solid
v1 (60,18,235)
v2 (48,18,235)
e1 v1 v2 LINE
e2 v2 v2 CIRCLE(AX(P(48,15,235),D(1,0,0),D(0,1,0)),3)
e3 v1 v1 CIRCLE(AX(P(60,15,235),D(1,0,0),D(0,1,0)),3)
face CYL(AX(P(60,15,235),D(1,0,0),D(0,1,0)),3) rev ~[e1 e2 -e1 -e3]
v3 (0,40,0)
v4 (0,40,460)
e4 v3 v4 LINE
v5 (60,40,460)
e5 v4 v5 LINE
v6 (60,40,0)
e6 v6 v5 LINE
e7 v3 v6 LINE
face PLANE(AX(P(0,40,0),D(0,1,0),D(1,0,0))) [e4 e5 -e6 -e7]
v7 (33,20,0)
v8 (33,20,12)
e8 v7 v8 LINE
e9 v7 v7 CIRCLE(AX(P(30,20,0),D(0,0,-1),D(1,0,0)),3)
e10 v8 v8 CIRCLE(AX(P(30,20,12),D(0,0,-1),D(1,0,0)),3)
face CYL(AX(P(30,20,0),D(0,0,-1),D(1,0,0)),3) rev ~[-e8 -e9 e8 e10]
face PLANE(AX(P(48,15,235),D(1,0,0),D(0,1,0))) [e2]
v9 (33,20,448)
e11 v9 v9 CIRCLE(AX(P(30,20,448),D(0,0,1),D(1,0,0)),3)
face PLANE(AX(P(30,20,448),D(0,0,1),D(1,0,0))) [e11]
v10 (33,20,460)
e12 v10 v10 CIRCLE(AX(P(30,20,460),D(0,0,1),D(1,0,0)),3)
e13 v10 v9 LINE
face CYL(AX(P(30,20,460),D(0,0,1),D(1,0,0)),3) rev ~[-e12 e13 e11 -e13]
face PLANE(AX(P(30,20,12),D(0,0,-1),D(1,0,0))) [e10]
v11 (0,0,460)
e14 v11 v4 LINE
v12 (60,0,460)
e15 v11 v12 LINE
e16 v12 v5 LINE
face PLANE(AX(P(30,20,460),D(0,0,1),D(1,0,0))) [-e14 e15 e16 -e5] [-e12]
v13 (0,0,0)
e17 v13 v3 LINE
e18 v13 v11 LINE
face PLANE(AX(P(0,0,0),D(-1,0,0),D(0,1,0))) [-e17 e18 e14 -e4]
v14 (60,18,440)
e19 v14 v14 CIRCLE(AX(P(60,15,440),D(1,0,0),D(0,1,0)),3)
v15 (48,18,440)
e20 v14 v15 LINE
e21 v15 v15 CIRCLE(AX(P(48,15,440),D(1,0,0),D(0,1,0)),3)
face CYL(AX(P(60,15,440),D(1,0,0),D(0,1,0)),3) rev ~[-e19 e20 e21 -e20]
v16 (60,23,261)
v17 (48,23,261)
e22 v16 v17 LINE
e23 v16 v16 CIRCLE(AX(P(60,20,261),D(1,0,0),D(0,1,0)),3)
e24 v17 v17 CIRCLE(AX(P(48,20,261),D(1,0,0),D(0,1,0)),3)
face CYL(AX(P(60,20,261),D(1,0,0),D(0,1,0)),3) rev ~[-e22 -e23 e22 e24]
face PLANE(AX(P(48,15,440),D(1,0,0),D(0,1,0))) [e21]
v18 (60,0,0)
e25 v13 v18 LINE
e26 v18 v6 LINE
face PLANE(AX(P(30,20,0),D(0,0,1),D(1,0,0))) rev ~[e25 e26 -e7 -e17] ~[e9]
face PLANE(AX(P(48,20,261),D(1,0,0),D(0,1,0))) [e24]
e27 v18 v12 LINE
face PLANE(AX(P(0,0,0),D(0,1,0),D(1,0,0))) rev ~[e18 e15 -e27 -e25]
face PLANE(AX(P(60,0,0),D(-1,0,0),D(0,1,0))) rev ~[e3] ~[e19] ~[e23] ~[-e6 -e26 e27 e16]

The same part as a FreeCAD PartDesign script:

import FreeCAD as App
import Part
import Sketcher

V = App.Vector
Q = App.Units.Quantity


def add_polygon(sketch, points):
    """Adds a closed chain of lines whose ends are joined by coincident constraints."""
    first, n = sketch.GeometryCount, len(points)
    for a, b in zip(points, points[1:] + points[:1]):
        sketch.addGeometry(Part.LineSegment(App.Vector(*a, 0), App.Vector(*b, 0)), False)
    for i in range(n):
        sketch.addConstraint(Sketcher.Constraint("Coincident", first + i, 2, first + (i + 1) % n, 1))

doc = App.newDocument("Part")
params = doc.addObject("Spreadsheet::Sheet", "Params")
for row, (alias, value) in enumerate([
    ("sketch1_width", "60 mm"),
    ("sketch1_height", "40 mm"),
    ("pad1_length", "460 mm"),
    ("sketch2_diameter", "6 mm"),
    ("pocket1_length", "12 mm"),
    ("sketch3_diameter", "6 mm"),
    ("pocket2_length", "12 mm"),
    ("sketch4_diameter", "6 mm"),
    ("pocket3_length", "12 mm"),
    ("sketch5_diameter", "6 mm"),
    ("pocket4_length", "12 mm"),
    ("sketch6_diameter", "6 mm"),
    ("pocket5_length", "12 mm"),
], start=1):
    params.set(f"A{row}", alias)
    params.set(f"B{row}", "=" + value)
    params.setAlias(f"B{row}", alias)

body = doc.addObject("PartDesign::Body", "Body")

# Sketch on XY plane
sketch1 = body.newObject("Sketcher::SketchObject", "Sketch")
sketch1.AttachmentSupport = (doc.getObject("XY_Plane"), [""])
sketch1.MapMode = "FlatFace"
add_polygon(sketch1, [(0, 40), (0, 0), (60, 0), (60, 40)])  # lines 0-3
sketch1.addConstraint([
    Sketcher.Constraint("Vertical", 0),
    Sketcher.Constraint("Horizontal", 1),
    Sketcher.Constraint("Vertical", 2),
    Sketcher.Constraint("Horizontal", 3),
    Sketcher.Constraint("Coincident", 0, 2, -1, 1),
    Sketcher.Constraint("DistanceX", 1, 1, 1, 2, Q("60 mm")),
    Sketcher.Constraint("DistanceY", 0, 2, 0, 1, Q("40 mm")),
])
sketch1.setExpression("Constraints[9]", "Params.sketch1_width")
sketch1.setExpression("Constraints[10]", "Params.sketch1_height")
pad1 = body.newObject("PartDesign::Pad", "Pad")
pad1.Profile = sketch1
pad1.setExpression("Length", "Params.pad1_length")

# Sketch on XY plane
sketch2 = body.newObject("Sketcher::SketchObject", "Sketch001")
sketch2.AttachmentSupport = (doc.getObject("XY_Plane"), [""])
sketch2.MapMode = "FlatFace"
sketch2.AttachmentOffset = App.Placement(V(0, 0, 460), App.Rotation())
sketch2.addGeometry(Part.Circle(V(30, 20, 0), V(0, 0, 1), 3), False)
sketch2.addConstraint([
    Sketcher.Constraint("Diameter", 0, Q("6 mm")),
    Sketcher.Constraint("DistanceX", -1, 1, 0, 3, Q("30 mm")),
    Sketcher.Constraint("DistanceY", -1, 1, 0, 3, Q("20 mm")),
])
sketch2.setExpression("Constraints[0]", "Params.sketch2_diameter")
pocket1 = body.newObject("PartDesign::Pocket", "Pocket")
pocket1.Profile = sketch2
pocket1.setExpression("Length", "Params.pocket1_length")

# Sketch on XY plane
sketch3 = body.newObject("Sketcher::SketchObject", "Sketch002")
sketch3.AttachmentSupport = (doc.getObject("XY_Plane"), [""])
sketch3.MapMode = "FlatFace"
sketch3.addGeometry(Part.Circle(V(30, 20, 0), V(0, 0, 1), 3), False)
sketch3.addConstraint([
    Sketcher.Constraint("Diameter", 0, Q("6 mm")),
    Sketcher.Constraint("DistanceX", -1, 1, 0, 3, Q("30 mm")),
    Sketcher.Constraint("DistanceY", -1, 1, 0, 3, Q("20 mm")),
])
sketch3.setExpression("Constraints[0]", "Params.sketch3_diameter")
pocket2 = body.newObject("PartDesign::Pocket", "Pocket001")
pocket2.Profile = sketch3
pocket2.setExpression("Length", "Params.pocket2_length")
pocket2.Reversed = True

# Sketch on YZ plane
sketch4 = body.newObject("Sketcher::SketchObject", "Sketch003")
sketch4.AttachmentSupport = (doc.getObject("YZ_Plane"), [""])
sketch4.MapMode = "FlatFace"
sketch4.AttachmentOffset = App.Placement(V(0, 0, 60), App.Rotation())
sketch4.addGeometry(Part.Circle(V(20, 261, 0), V(0, 0, 1), 3), False)
sketch4.addConstraint([
    Sketcher.Constraint("Diameter", 0, Q("6 mm")),
    Sketcher.Constraint("DistanceX", -1, 1, 0, 3, Q("20 mm")),
    Sketcher.Constraint("DistanceY", -1, 1, 0, 3, Q("261 mm")),
])
sketch4.setExpression("Constraints[0]", "Params.sketch4_diameter")
pocket3 = body.newObject("PartDesign::Pocket", "Pocket002")
pocket3.Profile = sketch4
pocket3.setExpression("Length", "Params.pocket3_length")

# Sketch on YZ plane
sketch5 = body.newObject("Sketcher::SketchObject", "Sketch004")
sketch5.AttachmentSupport = (doc.getObject("YZ_Plane"), [""])
sketch5.MapMode = "FlatFace"
sketch5.AttachmentOffset = App.Placement(V(0, 0, 60), App.Rotation())
sketch5.addGeometry(Part.Circle(V(15, 440, 0), V(0, 0, 1), 3), False)
sketch5.addConstraint([
    Sketcher.Constraint("Diameter", 0, Q("6 mm")),
    Sketcher.Constraint("DistanceX", -1, 1, 0, 3, Q("15 mm")),
    Sketcher.Constraint("DistanceY", -1, 1, 0, 3, Q("440 mm")),
])
sketch5.setExpression("Constraints[0]", "Params.sketch5_diameter")
pocket4 = body.newObject("PartDesign::Pocket", "Pocket003")
pocket4.Profile = sketch5
pocket4.setExpression("Length", "Params.pocket4_length")

# Sketch on YZ plane
sketch6 = body.newObject("Sketcher::SketchObject", "Sketch005")
sketch6.AttachmentSupport = (doc.getObject("YZ_Plane"), [""])
sketch6.MapMode = "FlatFace"
sketch6.AttachmentOffset = App.Placement(V(0, 0, 60), App.Rotation())
sketch6.addGeometry(Part.Circle(V(15, 235, 0), V(0, 0, 1), 3), False)
sketch6.addConstraint([
    Sketcher.Constraint("Diameter", 0, Q("6 mm")),
    Sketcher.Constraint("DistanceX", -1, 1, 0, 3, Q("15 mm")),
    Sketcher.Constraint("DistanceY", -1, 1, 0, 3, Q("235 mm")),
])
sketch6.setExpression("Constraints[0]", "Params.sketch6_diameter")
pocket5 = body.newObject("PartDesign::Pocket", "Pocket004")
pocket5.Profile = sketch6
pocket5.setExpression("Length", "Params.pocket5_length")

doc.recompute()
